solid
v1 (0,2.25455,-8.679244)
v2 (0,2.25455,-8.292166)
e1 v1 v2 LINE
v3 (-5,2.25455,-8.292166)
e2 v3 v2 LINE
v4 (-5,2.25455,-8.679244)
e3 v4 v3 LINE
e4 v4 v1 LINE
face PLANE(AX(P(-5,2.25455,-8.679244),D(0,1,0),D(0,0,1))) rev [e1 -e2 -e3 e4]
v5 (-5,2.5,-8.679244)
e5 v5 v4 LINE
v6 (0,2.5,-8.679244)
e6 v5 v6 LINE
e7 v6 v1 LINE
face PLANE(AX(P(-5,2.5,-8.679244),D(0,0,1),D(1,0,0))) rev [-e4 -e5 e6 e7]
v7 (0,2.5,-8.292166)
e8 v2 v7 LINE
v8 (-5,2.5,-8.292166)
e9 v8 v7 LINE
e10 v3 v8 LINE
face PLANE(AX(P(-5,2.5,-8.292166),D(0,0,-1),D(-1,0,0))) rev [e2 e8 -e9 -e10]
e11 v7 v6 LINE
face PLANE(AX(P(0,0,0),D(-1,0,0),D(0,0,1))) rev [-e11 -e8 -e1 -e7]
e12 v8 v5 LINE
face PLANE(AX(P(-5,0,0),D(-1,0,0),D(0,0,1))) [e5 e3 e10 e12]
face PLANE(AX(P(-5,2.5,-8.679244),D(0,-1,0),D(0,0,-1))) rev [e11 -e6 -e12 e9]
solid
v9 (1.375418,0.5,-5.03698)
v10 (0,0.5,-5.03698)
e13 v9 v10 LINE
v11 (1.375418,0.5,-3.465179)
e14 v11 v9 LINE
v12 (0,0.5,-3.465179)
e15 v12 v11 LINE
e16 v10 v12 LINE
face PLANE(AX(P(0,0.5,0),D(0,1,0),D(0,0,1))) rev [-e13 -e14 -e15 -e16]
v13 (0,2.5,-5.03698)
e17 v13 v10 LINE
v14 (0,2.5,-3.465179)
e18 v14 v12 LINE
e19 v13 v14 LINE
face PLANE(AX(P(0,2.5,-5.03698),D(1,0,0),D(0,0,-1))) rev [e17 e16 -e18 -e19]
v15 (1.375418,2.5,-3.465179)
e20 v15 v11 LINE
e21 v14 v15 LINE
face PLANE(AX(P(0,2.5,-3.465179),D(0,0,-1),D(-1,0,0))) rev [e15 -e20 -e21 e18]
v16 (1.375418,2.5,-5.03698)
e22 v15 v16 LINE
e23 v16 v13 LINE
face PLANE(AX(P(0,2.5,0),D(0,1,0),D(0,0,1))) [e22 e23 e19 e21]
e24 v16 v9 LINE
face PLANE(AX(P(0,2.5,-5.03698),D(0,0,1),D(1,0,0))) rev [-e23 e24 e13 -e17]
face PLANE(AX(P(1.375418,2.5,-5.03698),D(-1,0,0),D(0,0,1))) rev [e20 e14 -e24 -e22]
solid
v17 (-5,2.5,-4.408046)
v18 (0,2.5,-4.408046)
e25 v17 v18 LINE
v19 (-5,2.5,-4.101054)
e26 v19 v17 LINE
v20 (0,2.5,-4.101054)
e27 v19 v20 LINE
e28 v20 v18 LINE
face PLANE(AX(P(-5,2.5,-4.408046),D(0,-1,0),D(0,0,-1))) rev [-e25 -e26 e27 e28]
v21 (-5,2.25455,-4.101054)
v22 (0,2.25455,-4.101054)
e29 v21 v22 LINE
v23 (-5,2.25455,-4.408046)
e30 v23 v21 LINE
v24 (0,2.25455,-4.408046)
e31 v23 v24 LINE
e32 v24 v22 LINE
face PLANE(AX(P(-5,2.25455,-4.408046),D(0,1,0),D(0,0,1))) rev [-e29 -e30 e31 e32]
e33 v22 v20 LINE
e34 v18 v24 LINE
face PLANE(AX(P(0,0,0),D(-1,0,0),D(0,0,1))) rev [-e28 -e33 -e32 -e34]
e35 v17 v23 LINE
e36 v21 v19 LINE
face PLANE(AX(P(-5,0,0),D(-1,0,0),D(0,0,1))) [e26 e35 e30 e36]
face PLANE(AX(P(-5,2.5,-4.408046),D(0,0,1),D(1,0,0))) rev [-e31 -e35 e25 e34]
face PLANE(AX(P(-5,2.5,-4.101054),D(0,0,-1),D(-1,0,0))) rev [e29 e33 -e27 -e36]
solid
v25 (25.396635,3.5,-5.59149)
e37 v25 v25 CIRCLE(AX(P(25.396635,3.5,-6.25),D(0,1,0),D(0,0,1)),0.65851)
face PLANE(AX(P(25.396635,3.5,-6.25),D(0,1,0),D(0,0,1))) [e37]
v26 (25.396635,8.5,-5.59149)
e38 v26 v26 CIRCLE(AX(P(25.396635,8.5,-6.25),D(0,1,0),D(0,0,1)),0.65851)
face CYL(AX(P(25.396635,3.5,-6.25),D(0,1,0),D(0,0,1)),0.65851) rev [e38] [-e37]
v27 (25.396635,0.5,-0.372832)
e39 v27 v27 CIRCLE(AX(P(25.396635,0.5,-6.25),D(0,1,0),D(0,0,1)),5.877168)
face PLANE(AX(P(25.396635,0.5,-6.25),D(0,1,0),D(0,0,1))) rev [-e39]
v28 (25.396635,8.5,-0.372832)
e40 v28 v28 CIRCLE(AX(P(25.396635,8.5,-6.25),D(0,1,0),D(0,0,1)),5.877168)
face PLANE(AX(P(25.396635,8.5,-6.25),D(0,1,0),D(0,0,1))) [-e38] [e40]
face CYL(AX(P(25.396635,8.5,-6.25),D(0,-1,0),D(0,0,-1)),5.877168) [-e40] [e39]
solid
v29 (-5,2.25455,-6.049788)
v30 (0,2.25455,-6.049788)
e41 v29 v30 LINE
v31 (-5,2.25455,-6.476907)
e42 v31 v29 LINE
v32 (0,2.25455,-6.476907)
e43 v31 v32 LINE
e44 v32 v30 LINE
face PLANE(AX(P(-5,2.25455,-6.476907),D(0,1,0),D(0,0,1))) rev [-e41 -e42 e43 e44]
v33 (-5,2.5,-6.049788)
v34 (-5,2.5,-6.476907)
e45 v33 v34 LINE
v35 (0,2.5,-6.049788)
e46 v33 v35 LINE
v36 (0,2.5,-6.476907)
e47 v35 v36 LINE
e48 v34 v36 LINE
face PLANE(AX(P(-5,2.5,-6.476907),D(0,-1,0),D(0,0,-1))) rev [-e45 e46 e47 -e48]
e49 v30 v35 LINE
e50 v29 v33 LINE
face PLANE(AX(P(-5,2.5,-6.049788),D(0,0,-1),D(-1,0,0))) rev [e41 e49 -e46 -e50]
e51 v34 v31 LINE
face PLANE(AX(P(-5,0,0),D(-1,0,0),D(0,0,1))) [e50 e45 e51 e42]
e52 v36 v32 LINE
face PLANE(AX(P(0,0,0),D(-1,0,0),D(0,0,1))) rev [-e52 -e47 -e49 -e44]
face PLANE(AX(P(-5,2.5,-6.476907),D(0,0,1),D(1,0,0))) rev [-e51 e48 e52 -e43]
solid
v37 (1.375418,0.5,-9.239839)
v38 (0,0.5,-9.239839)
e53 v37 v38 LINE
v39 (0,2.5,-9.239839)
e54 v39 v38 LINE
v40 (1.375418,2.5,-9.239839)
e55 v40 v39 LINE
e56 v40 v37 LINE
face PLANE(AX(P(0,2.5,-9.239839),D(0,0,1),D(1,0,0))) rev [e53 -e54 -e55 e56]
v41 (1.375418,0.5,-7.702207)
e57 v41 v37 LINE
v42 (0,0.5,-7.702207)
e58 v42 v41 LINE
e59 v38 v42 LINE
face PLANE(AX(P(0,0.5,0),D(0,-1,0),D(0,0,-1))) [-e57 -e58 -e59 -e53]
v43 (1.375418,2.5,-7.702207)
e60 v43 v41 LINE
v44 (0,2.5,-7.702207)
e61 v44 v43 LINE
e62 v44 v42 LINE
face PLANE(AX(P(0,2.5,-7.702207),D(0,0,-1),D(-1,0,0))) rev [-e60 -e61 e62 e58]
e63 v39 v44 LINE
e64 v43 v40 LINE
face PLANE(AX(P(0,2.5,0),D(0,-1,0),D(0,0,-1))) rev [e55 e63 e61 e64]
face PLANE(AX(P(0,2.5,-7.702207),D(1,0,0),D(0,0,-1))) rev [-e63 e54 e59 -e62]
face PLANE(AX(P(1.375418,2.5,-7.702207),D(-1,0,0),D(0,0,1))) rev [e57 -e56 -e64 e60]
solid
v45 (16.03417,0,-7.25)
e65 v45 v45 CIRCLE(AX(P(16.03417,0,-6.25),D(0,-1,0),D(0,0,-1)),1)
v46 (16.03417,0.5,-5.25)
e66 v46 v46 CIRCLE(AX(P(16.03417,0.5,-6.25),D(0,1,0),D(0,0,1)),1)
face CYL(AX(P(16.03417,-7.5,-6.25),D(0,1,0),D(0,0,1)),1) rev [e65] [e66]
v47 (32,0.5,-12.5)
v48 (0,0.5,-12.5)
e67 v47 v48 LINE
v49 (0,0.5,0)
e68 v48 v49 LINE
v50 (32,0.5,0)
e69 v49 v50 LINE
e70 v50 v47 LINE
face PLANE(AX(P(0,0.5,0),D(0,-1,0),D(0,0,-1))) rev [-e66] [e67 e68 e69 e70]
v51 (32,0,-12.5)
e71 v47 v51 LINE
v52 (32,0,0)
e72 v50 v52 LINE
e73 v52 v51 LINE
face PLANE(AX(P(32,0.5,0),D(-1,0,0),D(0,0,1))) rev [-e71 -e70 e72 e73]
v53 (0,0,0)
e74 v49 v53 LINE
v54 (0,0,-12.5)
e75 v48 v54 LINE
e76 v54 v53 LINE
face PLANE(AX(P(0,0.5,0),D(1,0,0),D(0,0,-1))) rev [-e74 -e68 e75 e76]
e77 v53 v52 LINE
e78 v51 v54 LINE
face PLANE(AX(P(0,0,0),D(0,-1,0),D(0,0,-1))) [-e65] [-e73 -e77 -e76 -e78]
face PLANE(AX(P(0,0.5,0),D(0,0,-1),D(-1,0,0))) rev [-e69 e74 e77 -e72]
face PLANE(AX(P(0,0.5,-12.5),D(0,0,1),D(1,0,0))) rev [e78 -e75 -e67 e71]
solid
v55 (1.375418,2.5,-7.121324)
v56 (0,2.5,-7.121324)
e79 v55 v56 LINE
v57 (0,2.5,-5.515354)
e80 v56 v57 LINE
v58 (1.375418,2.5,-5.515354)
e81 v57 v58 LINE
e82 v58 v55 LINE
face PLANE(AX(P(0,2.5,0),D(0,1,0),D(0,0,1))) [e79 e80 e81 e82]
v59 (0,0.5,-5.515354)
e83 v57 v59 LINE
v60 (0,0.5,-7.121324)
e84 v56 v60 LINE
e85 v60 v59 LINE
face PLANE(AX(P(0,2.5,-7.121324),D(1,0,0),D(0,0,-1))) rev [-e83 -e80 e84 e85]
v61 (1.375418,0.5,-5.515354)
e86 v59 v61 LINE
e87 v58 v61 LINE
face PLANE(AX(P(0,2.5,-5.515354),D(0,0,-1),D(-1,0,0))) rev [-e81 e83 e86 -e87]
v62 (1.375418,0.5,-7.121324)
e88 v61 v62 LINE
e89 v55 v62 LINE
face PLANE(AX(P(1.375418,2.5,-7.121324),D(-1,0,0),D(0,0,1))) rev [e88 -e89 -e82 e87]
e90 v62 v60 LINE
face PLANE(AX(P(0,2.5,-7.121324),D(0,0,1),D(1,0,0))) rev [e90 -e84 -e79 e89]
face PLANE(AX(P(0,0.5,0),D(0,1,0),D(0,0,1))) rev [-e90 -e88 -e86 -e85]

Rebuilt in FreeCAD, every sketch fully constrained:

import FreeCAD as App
import Part
import Sketcher
from FreeCAD import Vector

doc = App.newDocument("Part")
body = doc.addObject("PartDesign::Body", "Body")

sketch1 = doc.addObject("Sketcher::SketchObject", "Sketch")
body.addObject(sketch1)
sketch1.AttachmentSupport = (doc.XZ_Plane, [""])
sketch1.MapMode = "FlatFace"
sketch1.addGeometry(Part.LineSegment(Vector(0, -12, 0), Vector(0, 0, 0)), False)
sketch1.addGeometry(Part.LineSegment(Vector(0, 0, 0), Vector(32, 0, 0)), False)
sketch1.addGeometry(Part.LineSegment(Vector(32, 0, 0), Vector(32, -12, 0)), False)
sketch1.addGeometry(Part.LineSegment(Vector(32, -12, 0), Vector(0, -12, 0)), False)
sketch1.addConstraint(Sketcher.Constraint("Coincident", 0, 2, 1, 1))
sketch1.addConstraint(Sketcher.Constraint("Coincident", 1, 2, 2, 1))
sketch1.addConstraint(Sketcher.Constraint("Coincident", 2, 2, 3, 1))
sketch1.addConstraint(Sketcher.Constraint("Coincident", 3, 2, 0, 1))
sketch1.addConstraint(Sketcher.Constraint("Vertical", 0))
sketch1.addConstraint(Sketcher.Constraint("Horizontal", 1))
sketch1.addConstraint(Sketcher.Constraint("Vertical", 2))
sketch1.addConstraint(Sketcher.Constraint("Horizontal", 3))
sketch1.addConstraint(Sketcher.Constraint("Coincident", 0, 2, -1, 1))
sketch1.addConstraint(Sketcher.Constraint("DistanceX", 1, 1, 1, 2, 32.0))
sketch1.addConstraint(Sketcher.Constraint("DistanceY", 0, 1, 0, 2, 12.5))
pad1 = doc.addObject("PartDesign::Pad", "Pad")
body.addObject(pad1)
pad1.Profile = sketch1
pad1.Length = 0.5
pad1.Reversed = True

sketch2 = doc.addObject("Sketcher::SketchObject", "Sketch001")
body.addObject(sketch2)
sketch2.AttachmentSupport = (doc.XZ_Plane, [""])
sketch2.MapMode = "FlatFace"
sketch2.AttachmentOffset = App.Placement(Vector(0, 0, -0.5), App.Rotation())
sketch2.addGeometry(Part.Circle(Vector(16, -6.2, 0), Vector(0, 0, 1), 1), False)
sketch2.addConstraint(Sketcher.Constraint("Diameter", 0, 2.0))
sketch2.addConstraint(Sketcher.Constraint("DistanceY", 0, 3, -1, 1, 6.25))
sketch2.addConstraint(Sketcher.Constraint("DistanceX", -1, 1, 0, 3, 16.03417))
pocket1 = doc.addObject("PartDesign::Pocket", "Pocket")
body.addObject(pocket1)
pocket1.Profile = sketch2
pocket1.Length = 8
pocket1.Reversed = True
body2 = doc.addObject("PartDesign::Body", "Body001")

sketch3 = doc.addObject("Sketcher::SketchObject", "Sketch002")
body2.addObject(sketch3)
sketch3.AttachmentSupport = (doc.getObject("XZ_Plane001"), [""])
sketch3.MapMode = "FlatFace"
sketch3.AttachmentOffset = App.Placement(Vector(0, 0, -0.5), App.Rotation())
sketch3.addGeometry(Part.Circle(Vector(25, -6, 0), Vector(0, 0, 1), 6), False)
sketch3.addConstraint(Sketcher.Constraint("DistanceY", 0, 3, -1, 1, 6.25))
sketch3.addConstraint(Sketcher.Constraint("Diameter", 0, 11.754337))
sketch3.addConstraint(Sketcher.Constraint("DistanceX", -1, 1, 0, 3, 25.396635))
pad2 = doc.addObject("PartDesign::Pad", "Pad001")
body2.addObject(pad2)
pad2.Profile = sketch3
pad2.Length = 8
pad2.Reversed = True

sketch4 = doc.addObject("Sketcher::SketchObject", "Sketch003")
body2.addObject(sketch4)
sketch4.AttachmentSupport = (doc.getObject("XZ_Plane001"), [""])
sketch4.MapMode = "FlatFace"
sketch4.AttachmentOffset = App.Placement(Vector(0, 0, -8.5), App.Rotation())
sketch4.addGeometry(Part.Circle(Vector(25.4, -6.2, 0), Vector(0, 0, 1), 0.7), False)
sketch4.addConstraint(Sketcher.Constraint("Diameter", 0, 1.31702))
sketch4.addConstraint(Sketcher.Constraint("DistanceY", 0, 3, -1, 1, 6.25))
sketch4.addConstraint(Sketcher.Constraint("DistanceX", -1, 1, 0, 3, 25.396635))
pocket2 = doc.addObject("PartDesign::Pocket", "Pocket001")
body2.addObject(pocket2)
pocket2.Profile = sketch4
pocket2.Length = 5
pocket2.Reversed = True
body3 = doc.addObject("PartDesign::Body", "Body002")

sketch5 = doc.addObject("Sketcher::SketchObject", "Sketch004")
body3.addObject(sketch5)
sketch5.AttachmentSupport = (doc.getObject("XZ_Plane002"), [""])
sketch5.MapMode = "FlatFace"
sketch5.AttachmentOffset = App.Placement(Vector(0, 0, -0.5), App.Rotation())
sketch5.addGeometry(Part.LineSegment(Vector(0, -7.1, 0), Vector(0, -5.5, 0)), False)
sketch5.addGeometry(Part.LineSegment(Vector(0, -5.5, 0), Vector(1.4, -5.5, 0)), False)
sketch5.addGeometry(Part.LineSegment(Vector(1.4, -5.5, 0), Vector(1.4, -7.1, 0)), False)
sketch5.addGeometry(Part.LineSegment(Vector(1.4, -7.1, 0), Vector(0, -7.1, 0)), False)
sketch5.addConstraint(Sketcher.Constraint("Coincident", 0, 2, 1, 1))
sketch5.addConstraint(Sketcher.Constraint("Coincident", 1, 2, 2, 1))
sketch5.addConstraint(Sketcher.Constraint("Coincident", 2, 2, 3, 1))
sketch5.addConstraint(Sketcher.Constraint("Coincident", 3, 2, 0, 1))
sketch5.addConstraint(Sketcher.Constraint("Vertical", 0))
sketch5.addConstraint(Sketcher.Constraint("Horizontal", 1))
sketch5.addConstraint(Sketcher.Constraint("Vertical", 2))
sketch5.addConstraint(Sketcher.Constraint("Horizontal", 3))
sketch5.addConstraint(Sketcher.Constraint("PointOnObject", 0, 2, -2))
sketch5.addConstraint(Sketcher.Constraint("DistanceX", 1, 1, 1, 2, 1.375418))
sketch5.addConstraint(Sketcher.Constraint("DistanceY", 0, 1, 0, 2, 1.60597))
sketch5.addConstraint(Sketcher.Constraint("DistanceY", 0, 2, -1, 1, 5.515354))
pad3 = doc.addObject("PartDesign::Pad", "Pad002")
body3.addObject(pad3)
pad3.Profile = sketch5
pad3.Length = 2
pad3.Reversed = True
body4 = doc.addObject("PartDesign::Body", "Body003")

sketch6 = doc.addObject("Sketcher::SketchObject", "Sketch005")
body4.addObject(sketch6)
sketch6.AttachmentSupport = (doc.getObject("XZ_Plane003"), [""])
sketch6.MapMode = "FlatFace"
sketch6.AttachmentOffset = App.Placement(Vector(0, 0, -0.5), App.Rotation())
sketch6.addGeometry(Part.LineSegment(Vector(0, -9.2, 0), Vector(0, -7.7, 0)), False)
sketch6.addGeometry(Part.LineSegment(Vector(0, -7.7, 0), Vector(1.4, -7.7, 0)), False)
sketch6.addGeometry(Part.LineSegment(Vector(1.4, -7.7, 0), Vector(1.4, -9.2, 0)), False)
sketch6.addGeometry(Part.LineSegment(Vector(1.4, -9.2, 0), Vector(0, -9.2, 0)), False)
sketch6.addConstraint(Sketcher.Constraint("Coincident", 0, 2, 1, 1))
sketch6.addConstraint(Sketcher.Constraint("Coincident", 1, 2, 2, 1))
sketch6.addConstraint(Sketcher.Constraint("Coincident", 2, 2, 3, 1))
sketch6.addConstraint(Sketcher.Constraint("Coincident", 3, 2, 0, 1))
sketch6.addConstraint(Sketcher.Constraint("Vertical", 0))
sketch6.addConstraint(Sketcher.Constraint("Horizontal", 1))
sketch6.addConstraint(Sketcher.Constraint("Vertical", 2))
sketch6.addConstraint(Sketcher.Constraint("Horizontal", 3))
sketch6.addConstraint(Sketcher.Constraint("PointOnObject", 0, 2, -2))
sketch6.addConstraint(Sketcher.Constraint("DistanceX", 1, 1, 1, 2, 1.375418))
sketch6.addConstraint(Sketcher.Constraint("DistanceY", 0, 1, 0, 2, 1.537631))
sketch6.addConstraint(Sketcher.Constraint("DistanceY", 2, 2, -1, 1, 9.239839))
pad4 = doc.addObject("PartDesign::Pad", "Pad003")
body4.addObject(pad4)
pad4.Profile = sketch6
pad4.Length = 2
pad4.Reversed = True
body5 = doc.addObject("PartDesign::Body", "Body004")

sketch7 = doc.addObject("Sketcher::SketchObject", "Sketch006")
body5.addObject(sketch7)
sketch7.AttachmentSupport = (doc.getObject("XZ_Plane004"), [""])
sketch7.MapMode = "FlatFace"
sketch7.AttachmentOffset = App.Placement(Vector(0, 0, -0.5), App.Rotation())
sketch7.addGeometry(Part.LineSegment(Vector(0, -5, 0), Vector(0, -3.5, 0)), False)
sketch7.addGeometry(Part.LineSegment(Vector(0, -3.5, 0), Vector(1.4, -3.5, 0)), False)
sketch7.addGeometry(Part.LineSegment(Vector(1.4, -3.5, 0), Vector(1.4, -5, 0)), False)
sketch7.addGeometry(Part.LineSegment(Vector(1.4, -5, 0), Vector(0, -5, 0)), False)
sketch7.addConstraint(Sketcher.Constraint("Coincident", 0, 2, 1, 1))
sketch7.addConstraint(Sketcher.Constraint("Coincident", 1, 2, 2, 1))
sketch7.addConstraint(Sketcher.Constraint("Coincident", 2, 2, 3, 1))
sketch7.addConstraint(Sketcher.Constraint("Coincident", 3, 2, 0, 1))
sketch7.addConstraint(Sketcher.Constraint("Vertical", 0))
sketch7.addConstraint(Sketcher.Constraint("Horizontal", 1))
sketch7.addConstraint(Sketcher.Constraint("Vertical", 2))
sketch7.addConstraint(Sketcher.Constraint("Horizontal", 3))
sketch7.addConstraint(Sketcher.Constraint("PointOnObject", 0, 2, -2))
sketch7.addConstraint(Sketcher.Constraint("DistanceY", 0, 1, 0, 2, 1.571801))
sketch7.addConstraint(Sketcher.Constraint("DistanceX", 1, 1, 1, 2, 1.375418))
sketch7.addConstraint(Sketcher.Constraint("DistanceY", 0, 2, -1, 1, 3.465179))
pad5 = doc.addObject("PartDesign::Pad", "Pad004")
body5.addObject(pad5)
pad5.Profile = sketch7
pad5.Length = 2
pad5.Reversed = True
body6 = doc.addObject("PartDesign::Body", "Body005")

sketch8 = doc.addObject("Sketcher::SketchObject", "Sketch007")
body6.addObject(sketch8)
sketch8.AttachmentSupport = (doc.getObject("YZ_Plane005"), [""])
sketch8.MapMode = "FlatFace"
sketch8.addGeometry(Part.LineSegment(Vector(2.5, -8.68, 0), Vector(2.25, -8.68, 0)), False)
sketch8.addGeometry(Part.LineSegment(Vector(2.25, -8.68, 0), Vector(2.25, -8.29, 0)), False)
sketch8.addGeometry(Part.LineSegment(Vector(2.25, -8.29, 0), Vector(2.5, -8.29, 0)), False)
sketch8.addGeometry(Part.LineSegment(Vector(2.5, -8.29, 0), Vector(2.5, -8.68, 0)), False)
sketch8.addConstraint(Sketcher.Constraint("Coincident", 0, 2, 1, 1))
sketch8.addConstraint(Sketcher.Constraint("Coincident", 1, 2, 2, 1))
sketch8.addConstraint(Sketcher.Constraint("Coincident", 2, 2, 3, 1))
sketch8.addConstraint(Sketcher.Constraint("Coincident", 3, 2, 0, 1))
sketch8.addConstraint(Sketcher.Constraint("Horizontal", 0))
sketch8.addConstraint(Sketcher.Constraint("Vertical", 1))
sketch8.addConstraint(Sketcher.Constraint("Horizontal", 2))
sketch8.addConstraint(Sketcher.Constraint("Vertical", 3))
sketch8.addConstraint(Sketcher.Constraint("DistanceX", -1, 1, 2, 2, 2.5))
sketch8.addConstraint(Sketcher.Constraint("DistanceX", 0, 2, 0, 1, 0.24545))
sketch8.addConstraint(Sketcher.Constraint("DistanceY", 1, 1, 1, 2, 0.387077))
sketch8.addConstraint(Sketcher.Constraint("DistanceY", 0, 2, -1, 1, 8.679244))
pad6 = doc.addObject("PartDesign::Pad", "Pad005")
body6.addObject(pad6)
pad6.Profile = sketch8
pad6.Length = 5
pad6.Reversed = True
body7 = doc.addObject("PartDesign::Body", "Body006")

sketch9 = doc.addObject("Sketcher::SketchObject", "Sketch008")
body7.addObject(sketch9)
sketch9.AttachmentSupport = (doc.getObject("YZ_Plane006"), [""])
sketch9.MapMode = "FlatFace"
sketch9.addGeometry(Part.LineSegment(Vector(2.5, -6.48, 0), Vector(2.25, -6.48, 0)), False)
sketch9.addGeometry(Part.LineSegment(Vector(2.25, -6.48, 0), Vector(2.25, -6.05, 0)), False)
sketch9.addGeometry(Part.LineSegment(Vector(2.25, -6.05, 0), Vector(2.5, -6.05, 0)), False)
sketch9.addGeometry(Part.LineSegment(Vector(2.5, -6.05, 0), Vector(2.5, -6.48, 0)), False)
sketch9.addConstraint(Sketcher.Constraint("Coincident", 0, 2, 1, 1))
sketch9.addConstraint(Sketcher.Constraint("Coincident", 1, 2, 2, 1))
sketch9.addConstraint(Sketcher.Constraint("Coincident", 2, 2, 3, 1))
sketch9.addConstraint(Sketcher.Constraint("Coincident", 3, 2, 0, 1))
sketch9.addConstraint(Sketcher.Constraint("Horizontal", 0))
sketch9.addConstraint(Sketcher.Constraint("Vertical", 1))
sketch9.addConstraint(Sketcher.Constraint("Horizontal", 2))
sketch9.addConstraint(Sketcher.Constraint("Vertical", 3))
sketch9.addConstraint(Sketcher.Constraint("DistanceX", -1, 1, 2, 2, 2.5))
sketch9.addConstraint(Sketcher.Constraint("DistanceX", 0, 2, 0, 1, 0.24545))
sketch9.addConstraint(Sketcher.Constraint("DistanceY", 1, 1, 1, 2, 0.42712))
sketch9.addConstraint(Sketcher.Constraint("DistanceY", 0, 2, -1, 1, 6.476907))
pad7 = doc.addObject("PartDesign::Pad", "Pad006")
body7.addObject(pad7)
pad7.Profile = sketch9
pad7.Length = 5
pad7.Reversed = True
body8 = doc.addObject("PartDesign::Body", "Body007")

sketch10 = doc.addObject("Sketcher::SketchObject", "Sketch009")
body8.addObject(sketch10)
sketch10.AttachmentSupport = (doc.getObject("YZ_Plane007"), [""])
sketch10.MapMode = "FlatFace"
sketch10.addGeometry(Part.LineSegment(Vector(2.5, -4.41, 0), Vector(2.25, -4.41, 0)), False)
sketch10.addGeometry(Part.LineSegment(Vector(2.25, -4.41, 0), Vector(2.25, -4.1, 0)), False)
sketch10.addGeometry(Part.LineSegment(Vector(2.25, -4.1, 0), Vector(2.5, -4.1, 0)), False)
sketch10.addGeometry(Part.LineSegment(Vector(2.5, -4.1, 0), Vector(2.5, -4.41, 0)), False)
sketch10.addConstraint(Sketcher.Constraint("Coincident", 0, 2, 1, 1))
sketch10.addConstraint(Sketcher.Constraint("Coincident", 1, 2, 2, 1))
sketch10.addConstraint(Sketcher.Constraint("Coincident", 2, 2, 3, 1))
sketch10.addConstraint(Sketcher.Constraint("Coincident", 3, 2, 0, 1))
sketch10.addConstraint(Sketcher.Constraint("Horizontal", 0))
sketch10.addConstraint(Sketcher.Constraint("Vertical", 1))
sketch10.addConstraint(Sketcher.Constraint("Horizontal", 2))
sketch10.addConstraint(Sketcher.Constraint("Vertical", 3))
sketch10.addConstraint(Sketcher.Constraint("DistanceX", -1, 1, 2, 2, 2.5))
sketch10.addConstraint(Sketcher.Constraint("DistanceX", 0, 2, 0, 1, 0.24545))
sketch10.addConstraint(Sketcher.Constraint("DistanceY", 1, 1, 1, 2, 0.306992))
sketch10.addConstraint(Sketcher.Constraint("DistanceY", 0, 2, -1, 1, 4.408046))
pad8 = doc.addObject("PartDesign::Pad", "Pad007")
body8.addObject(pad8)
pad8.Profile = sketch10
pad8.Length = 5
pad8.Reversed = True

doc.recompute()
